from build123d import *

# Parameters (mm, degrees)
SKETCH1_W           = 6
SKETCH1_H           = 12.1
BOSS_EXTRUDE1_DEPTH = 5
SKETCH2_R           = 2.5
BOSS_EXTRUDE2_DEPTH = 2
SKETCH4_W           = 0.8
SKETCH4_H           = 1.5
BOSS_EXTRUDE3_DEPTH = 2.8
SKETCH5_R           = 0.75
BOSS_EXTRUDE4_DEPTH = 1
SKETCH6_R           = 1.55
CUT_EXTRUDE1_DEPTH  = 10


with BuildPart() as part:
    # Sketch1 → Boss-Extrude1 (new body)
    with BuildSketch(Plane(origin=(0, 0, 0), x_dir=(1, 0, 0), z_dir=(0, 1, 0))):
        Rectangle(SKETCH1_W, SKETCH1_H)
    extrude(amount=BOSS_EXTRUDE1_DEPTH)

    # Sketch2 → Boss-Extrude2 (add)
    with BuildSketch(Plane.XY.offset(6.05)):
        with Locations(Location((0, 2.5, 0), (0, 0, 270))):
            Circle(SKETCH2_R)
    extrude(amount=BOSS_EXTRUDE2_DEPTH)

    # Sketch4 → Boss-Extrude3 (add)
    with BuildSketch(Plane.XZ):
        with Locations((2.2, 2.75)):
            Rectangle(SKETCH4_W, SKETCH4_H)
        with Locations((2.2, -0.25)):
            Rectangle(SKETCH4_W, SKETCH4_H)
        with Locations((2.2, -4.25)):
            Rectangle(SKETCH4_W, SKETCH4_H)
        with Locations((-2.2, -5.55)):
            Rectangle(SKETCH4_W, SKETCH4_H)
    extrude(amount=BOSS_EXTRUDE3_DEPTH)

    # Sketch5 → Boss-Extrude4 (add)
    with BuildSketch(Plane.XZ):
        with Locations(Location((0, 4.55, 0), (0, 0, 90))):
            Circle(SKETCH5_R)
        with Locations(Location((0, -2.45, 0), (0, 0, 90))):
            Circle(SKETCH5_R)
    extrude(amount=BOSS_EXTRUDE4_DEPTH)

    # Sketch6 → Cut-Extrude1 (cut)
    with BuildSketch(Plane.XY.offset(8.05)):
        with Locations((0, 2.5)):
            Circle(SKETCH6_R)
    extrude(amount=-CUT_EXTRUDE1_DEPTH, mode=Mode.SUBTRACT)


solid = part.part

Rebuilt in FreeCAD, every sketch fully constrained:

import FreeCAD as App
import Part
import Sketcher
from FreeCAD import Vector

doc = App.newDocument("Part")
params = doc.addObject("Spreadsheet::Sheet", "Params")
for row, (alias, value) in enumerate([
    ("sketch1_width", "6 mm"),
    ("sketch1_height", "12.1 mm"),
    ("pad1_length", "5 mm"),
    ("sketch2_diameter", "5 mm"),
    ("pad2_length", "2 mm"),
    ("sketch3_width", "0.8 mm"),
    ("sketch3_height", "1.5 mm"),
    ("pad3_length", "2.8 mm"),
    ("sketch4_diameter", "1.5 mm"),
    ("pad4_length", "1 mm"),
    ("sketch5_diameter", "3.1 mm"),
    ("pocket1_length", "10 mm"),
], start=1):
    params.set(f"A{row}", alias)
    params.set(f"B{row}", "=" + value)
    params.setAlias(f"B{row}", alias)

body = doc.addObject("PartDesign::Body", "Body")

sketch1 = body.newObject("Sketcher::SketchObject", "Sketch")
sketch1.AttachmentSupport = (doc.getObject("XZ_Plane"), [""])
sketch1.MapMode = "FlatFace"
sketch1.addGeometry([
    Part.LineSegment(Vector(-3, -6, 0), Vector(-3, 6, 0)),
    Part.LineSegment(Vector(-3, 6, 0), Vector(3, 6, 0)),
    Part.LineSegment(Vector(3, 6, 0), Vector(3, -6, 0)),
    Part.LineSegment(Vector(3, -6, 0), Vector(-3, -6, 0)),
], False)
sketch1.addConstraint([
    Sketcher.Constraint("Coincident", 0, 2, 1, 1),
    Sketcher.Constraint("Coincident", 1, 2, 2, 1),
    Sketcher.Constraint("Coincident", 2, 2, 3, 1),
    Sketcher.Constraint("Coincident", 3, 2, 0, 1),
    Sketcher.Constraint("Vertical", 0),
    Sketcher.Constraint("Horizontal", 1),
    Sketcher.Constraint("Vertical", 2),
    Sketcher.Constraint("Horizontal", 3),
    Sketcher.Constraint("Symmetric", 0, 2, 2, 2, -1, 1),
    Sketcher.Constraint("DistanceX", 1, 1, 1, 2, 6.0),
    Sketcher.Constraint("DistanceY", 0, 1, 0, 2, 12.1),
])
sketch1.setExpression("Constraints[9]", "Params.sketch1_width")
sketch1.setExpression("Constraints[10]", "Params.sketch1_height")
pad1 = body.newObject("PartDesign::Pad", "Pad")
pad1.Profile = sketch1
pad1.setExpression("Length", "Params.pad1_length")
pad1.Reversed = True

sketch2 = body.newObject("Sketcher::SketchObject", "Sketch001")
sketch2.AttachmentSupport = (doc.getObject("XY_Plane"), [""])
sketch2.MapMode = "FlatFace"
sketch2.AttachmentOffset = App.Placement(Vector(0, 0, 6.05), App.Rotation())
sketch2.addGeometry(Part.Circle(Vector(0, 2.5, 0), Vector(0, 0, 1), 2.5), False)
sketch2.addConstraint([
    Sketcher.Constraint("PointOnObject", 0, 3, -2),
    Sketcher.Constraint("Diameter", 0, 5.0),
    Sketcher.Constraint("DistanceY", -1, 1, 0, 3, 2.5),
])
sketch2.setExpression("Constraints[1]", "Params.sketch2_diameter")
pad2 = body.newObject("PartDesign::Pad", "Pad001")
pad2.Profile = sketch2
pad2.setExpression("Length", "Params.pad2_length")

sketch3 = body.newObject("Sketcher::SketchObject", "Sketch002")
sketch3.AttachmentSupport = (doc.getObject("XZ_Plane"), [""])
sketch3.MapMode = "FlatFace"
sketch3.addGeometry([
    Part.LineSegment(Vector(1.8, 3.5, 0), Vector(1.8, 2, 0)),
    Part.LineSegment(Vector(1.8, 2, 0), Vector(2.6, 2, 0)),
    Part.LineSegment(Vector(2.6, 2, 0), Vector(2.6, 3.5, 0)),
    Part.LineSegment(Vector(2.6, 3.5, 0), Vector(1.8, 3.5, 0)),
    Part.LineSegment(Vector(1.8, 0.5, 0), Vector(1.8, -1, 0)),
    Part.LineSegment(Vector(1.8, -1, 0), Vector(2.6, -1, 0)),
    Part.LineSegment(Vector(2.6, -1, 0), Vector(2.6, 0.5, 0)),
    Part.LineSegment(Vector(2.6, 0.5, 0), Vector(1.8, 0.5, 0)),
    Part.LineSegment(Vector(1.8, -3.5, 0), Vector(1.8, -5, 0)),
    Part.LineSegment(Vector(1.8, -5, 0), Vector(2.6, -5, 0)),
    Part.LineSegment(Vector(2.6, -5, 0), Vector(2.6, -3.5, 0)),
    Part.LineSegment(Vector(2.6, -3.5, 0), Vector(1.8, -3.5, 0)),
    Part.LineSegment(Vector(-2.6, -4.8, 0), Vector(-2.6, -6.3, 0)),
    Part.LineSegment(Vector(-2.6, -6.3, 0), Vector(-1.8, -6.3, 0)),
    Part.LineSegment(Vector(-1.8, -6.3, 0), Vector(-1.8, -4.8, 0)),
    Part.LineSegment(Vector(-1.8, -4.8, 0), Vector(-2.6, -4.8, 0)),
], False)
sketch3.addConstraint([
    Sketcher.Constraint("Coincident", 0, 2, 1, 1),
    Sketcher.Constraint("Coincident", 1, 2, 2, 1),
    Sketcher.Constraint("Coincident", 2, 2, 3, 1),
    Sketcher.Constraint("Coincident", 3, 2, 0, 1),
    Sketcher.Constraint("Coincident", 4, 2, 5, 1),
    Sketcher.Constraint("Coincident", 5, 2, 6, 1),
    Sketcher.Constraint("Coincident", 6, 2, 7, 1),
    Sketcher.Constraint("Coincident", 7, 2, 4, 1),
    Sketcher.Constraint("Coincident", 8, 2, 9, 1),
    Sketcher.Constraint("Coincident", 9, 2, 10, 1),
    Sketcher.Constraint("Coincident", 10, 2, 11, 1),
    Sketcher.Constraint("Coincident", 11, 2, 8, 1),
    Sketcher.Constraint("Coincident", 12, 2, 13, 1),
    Sketcher.Constraint("Coincident", 13, 2, 14, 1),
    Sketcher.Constraint("Coincident", 14, 2, 15, 1),
    Sketcher.Constraint("Coincident", 15, 2, 12, 1),
    Sketcher.Constraint("Vertical", 0),
    Sketcher.Constraint("Horizontal", 1),
    Sketcher.Constraint("Vertical", 2),
    Sketcher.Constraint("Horizontal", 3),
    Sketcher.Constraint("Vertical", 4),
    Sketcher.Constraint("Horizontal", 5),
    Sketcher.Constraint("Vertical", 6),
    Sketcher.Constraint("Horizontal", 7),
    Sketcher.Constraint("Vertical", 8),
    Sketcher.Constraint("Horizontal", 9),
    Sketcher.Constraint("Vertical", 10),
    Sketcher.Constraint("Horizontal", 11),
    Sketcher.Constraint("Vertical", 12),
    Sketcher.Constraint("Horizontal", 13),
    Sketcher.Constraint("Vertical", 14),
    Sketcher.Constraint("Horizontal", 15),
    Sketcher.Constraint("Symmetric", 2, 2, 10, 2, -1),
    Sketcher.Constraint("Vertical", 3, 2, 4, 2),
    Sketcher.Constraint("Vertical", 2, 2, 5, 2),
    Sketcher.Constraint("Vertical", 7, 2, 8, 2),
    Sketcher.Constraint("Equal", 11, 13),
    Sketcher.Constraint("Equal", 2, 4),
    Sketcher.Constraint("Equal", 6, 8),
    Sketcher.Constraint("Equal", 10, 12),
    Sketcher.Constraint("DistanceX", 1, 1, 1, 2, 0.8),
    Sketcher.Constraint("DistanceY", 0, 2, 0, 1, 1.5),
    Sketcher.Constraint("DistanceY", -1, 1, 0, 2, 2.0),
    Sketcher.Constraint("DistanceY", 4, 2, -1, 1, 1.0),
    Sketcher.Constraint("DistanceX", -1, 1, 0, 2, 1.8),
    Sketcher.Constraint("DistanceX", 12, 2, -1, 1, 2.6),
    Sketcher.Constraint("DistanceY", 12, 2, -1, 1, 6.3),
])
sketch3.setExpression("Constraints[40]", "Params.sketch3_width")
sketch3.setExpression("Constraints[41]", "Params.sketch3_height")
pad3 = body.newObject("PartDesign::Pad", "Pad002")
pad3.Profile = sketch3
pad3.setExpression("Length", "Params.pad3_length")

sketch4 = body.newObject("Sketcher::SketchObject", "Sketch003")
sketch4.AttachmentSupport = (doc.getObject("XZ_Plane"), [""])
sketch4.MapMode = "FlatFace"
sketch4.addGeometry([
    Part.Circle(Vector(0, 4.5, 0), Vector(0, 0, 1), 0.8),
    Part.Circle(Vector(0, -2.5, 0), Vector(0, 0, 1), 0.8),
], False)
sketch4.addConstraint([
    Sketcher.Constraint("Equal", 0, 1),
    Sketcher.Constraint("PointOnObject", 0, 3, -2),
    Sketcher.Constraint("PointOnObject", 1, 3, -2),
    Sketcher.Constraint("Diameter", 0, 1.5),
    Sketcher.Constraint("DistanceY", 1, 3, 0, 3, 7.0),
    Sketcher.Constraint("DistanceY", -1, 1, 0, 3, 4.55),
])
sketch4.setExpression("Constraints[3]", "Params.sketch4_diameter")
pad4 = body.newObject("PartDesign::Pad", "Pad003")
pad4.Profile = sketch4
pad4.setExpression("Length", "Params.pad4_length")

sketch5 = body.newObject("Sketcher::SketchObject", "Sketch004")
sketch5.AttachmentSupport = (doc.getObject("XY_Plane"), [""])
sketch5.MapMode = "FlatFace"
sketch5.AttachmentOffset = App.Placement(Vector(0, 0, 8.05), App.Rotation())
sketch5.addGeometry(Part.Circle(Vector(0, 2.5, 0), Vector(0, 0, 1), 1.6), False)
sketch5.addConstraint([
    Sketcher.Constraint("PointOnObject", 0, 3, -2),
    Sketcher.Constraint("Diameter", 0, 3.1),
    Sketcher.Constraint("DistanceY", -1, 1, 0, 3, 2.5),
])
sketch5.setExpression("Constraints[1]", "Params.sketch5_diameter")
pocket1 = body.newObject("PartDesign::Pocket", "Pocket")
pocket1.Profile = sketch5
pocket1.setExpression("Length", "Params.pocket1_length")

doc.recompute()
